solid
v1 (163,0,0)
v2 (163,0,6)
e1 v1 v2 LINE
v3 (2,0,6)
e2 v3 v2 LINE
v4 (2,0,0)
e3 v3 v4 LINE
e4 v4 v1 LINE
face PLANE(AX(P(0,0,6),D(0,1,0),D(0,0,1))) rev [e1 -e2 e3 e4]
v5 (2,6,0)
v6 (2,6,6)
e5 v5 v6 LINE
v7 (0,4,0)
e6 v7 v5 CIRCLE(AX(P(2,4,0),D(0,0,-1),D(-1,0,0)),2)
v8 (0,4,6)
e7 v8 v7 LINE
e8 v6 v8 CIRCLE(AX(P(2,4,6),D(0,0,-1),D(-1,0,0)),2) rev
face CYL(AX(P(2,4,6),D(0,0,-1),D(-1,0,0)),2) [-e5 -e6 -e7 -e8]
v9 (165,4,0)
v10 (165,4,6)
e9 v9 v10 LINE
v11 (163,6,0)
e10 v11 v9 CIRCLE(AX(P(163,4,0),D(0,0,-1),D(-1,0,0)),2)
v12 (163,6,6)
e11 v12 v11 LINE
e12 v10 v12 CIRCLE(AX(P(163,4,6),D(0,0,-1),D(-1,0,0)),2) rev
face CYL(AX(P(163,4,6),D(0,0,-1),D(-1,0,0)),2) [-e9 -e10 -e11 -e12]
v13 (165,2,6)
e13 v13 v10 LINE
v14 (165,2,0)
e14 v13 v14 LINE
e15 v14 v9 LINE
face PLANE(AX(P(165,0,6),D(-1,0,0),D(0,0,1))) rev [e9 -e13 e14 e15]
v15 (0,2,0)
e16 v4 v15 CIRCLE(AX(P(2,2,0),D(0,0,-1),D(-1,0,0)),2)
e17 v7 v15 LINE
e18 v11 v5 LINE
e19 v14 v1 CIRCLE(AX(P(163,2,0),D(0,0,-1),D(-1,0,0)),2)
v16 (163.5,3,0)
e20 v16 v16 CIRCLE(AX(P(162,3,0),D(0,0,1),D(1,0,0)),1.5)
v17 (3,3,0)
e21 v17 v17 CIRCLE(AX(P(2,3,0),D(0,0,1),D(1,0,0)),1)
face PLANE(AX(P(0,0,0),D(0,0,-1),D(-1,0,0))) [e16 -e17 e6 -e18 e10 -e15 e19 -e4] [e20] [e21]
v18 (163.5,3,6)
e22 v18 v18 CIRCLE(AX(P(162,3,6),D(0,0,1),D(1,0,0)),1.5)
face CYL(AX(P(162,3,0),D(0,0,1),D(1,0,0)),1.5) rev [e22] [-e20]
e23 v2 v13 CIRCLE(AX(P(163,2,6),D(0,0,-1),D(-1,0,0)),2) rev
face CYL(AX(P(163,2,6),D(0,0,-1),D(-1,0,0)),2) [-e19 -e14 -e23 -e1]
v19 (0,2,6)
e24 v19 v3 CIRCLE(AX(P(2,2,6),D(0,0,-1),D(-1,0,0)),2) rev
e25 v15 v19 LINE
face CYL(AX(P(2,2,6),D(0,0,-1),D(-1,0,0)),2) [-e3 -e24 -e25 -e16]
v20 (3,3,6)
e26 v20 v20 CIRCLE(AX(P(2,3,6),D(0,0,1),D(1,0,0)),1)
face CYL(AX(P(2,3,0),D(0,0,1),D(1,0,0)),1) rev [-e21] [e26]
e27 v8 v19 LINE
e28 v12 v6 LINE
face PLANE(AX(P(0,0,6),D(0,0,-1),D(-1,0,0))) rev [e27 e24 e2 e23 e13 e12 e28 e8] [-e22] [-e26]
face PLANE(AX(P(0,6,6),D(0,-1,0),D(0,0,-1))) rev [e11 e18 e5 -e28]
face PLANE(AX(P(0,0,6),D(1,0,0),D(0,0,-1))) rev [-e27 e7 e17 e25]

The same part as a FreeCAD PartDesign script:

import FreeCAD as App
import Part
import Sketcher

V = App.Vector


def edges_at(feature, points):
    """Names of the edges that pass closest to the given points."""
    edges = feature.Shape.Edges
    near = lambda p: min(range(len(edges)), key=lambda i: edges[i].distToShape(Part.Vertex(*p))[0])
    return sorted({f"Edge{near(p) + 1}" for p in points})


def add_polygon(sketch, points):
    """Adds a closed chain of lines whose ends are joined by coincident constraints."""
    first, n = sketch.GeometryCount, len(points)
    for a, b in zip(points, points[1:] + points[:1]):
        sketch.addGeometry(Part.LineSegment(App.Vector(*a, 0), App.Vector(*b, 0)), False)
    for i in range(n):
        sketch.addConstraint(Sketcher.Constraint("Coincident", first + i, 2, first + (i + 1) % n, 1))

doc = App.newDocument("Part")
body = doc.addObject("PartDesign::Body", "Body")

sketch1 = body.newObject("Sketcher::SketchObject", "Sketch")
sketch1.AttachmentSupport = (doc.getObject("XY_Plane"), [""])
sketch1.MapMode = "FlatFace"
add_polygon(sketch1, [(0, 6), (0, 0), (165, 0), (165, 6)])
sketch1.addConstraint(Sketcher.Constraint("Vertical", 0))
sketch1.addConstraint(Sketcher.Constraint("Horizontal", 1))
sketch1.addConstraint(Sketcher.Constraint("Vertical", 2))
sketch1.addConstraint(Sketcher.Constraint("Horizontal", 3))
sketch1.addConstraint(Sketcher.Constraint("Coincident", 0, 2, -1, 1))
sketch1.addConstraint(Sketcher.Constraint("DistanceX", 1, 1, 1, 2, 165.0))
sketch1.addConstraint(Sketcher.Constraint("DistanceY", 0, 2, 0, 1, 6.0))
pad1 = body.newObject("PartDesign::Pad", "Pad")
pad1.Profile = sketch1
pad1.Length = 6

sketch2 = body.newObject("Sketcher::SketchObject", "Sketch001")
sketch2.AttachmentSupport = (doc.getObject("XY_Plane"), [""])
sketch2.MapMode = "FlatFace"
sketch2.AttachmentOffset = App.Placement(V(0, 0, 6), App.Rotation())
sketch2.addGeometry(Part.Circle(V(162, 3, 0), V(0, 0, 1), 1.5), False)
sketch2.addGeometry(Part.Circle(V(2, 3, 0), V(0, 0, 1), 1), False)
sketch2.addConstraint(Sketcher.Constraint("Horizontal", 0, 3, 1, 3))
sketch2.addConstraint(Sketcher.Constraint("Diameter", 0, 3.0))
sketch2.addConstraint(Sketcher.Constraint("Diameter", 1, 2.0))
sketch2.addConstraint(Sketcher.Constraint("DistanceX", -1, 1, 0, 3, 162.0))
sketch2.addConstraint(Sketcher.Constraint("DistanceY", -1, 1, 0, 3, 3.0))
sketch2.addConstraint(Sketcher.Constraint("DistanceX", -1, 1, 1, 3, 2.0))
pocket1 = body.newObject("PartDesign::Pocket", "Pocket")
pocket1.Profile = sketch2
pocket1.Type = "ThroughAll"
doc.recompute()

fillet = body.newObject("PartDesign::Fillet", "Fillet")
fillet.Base = (pocket1, edges_at(pocket1, [
    (0, 6, 3),
    (165, 6, 3),
    (165, 0, 3),
    (0, 0, 3),
]))
fillet.Radius = 2

doc.recompute()
